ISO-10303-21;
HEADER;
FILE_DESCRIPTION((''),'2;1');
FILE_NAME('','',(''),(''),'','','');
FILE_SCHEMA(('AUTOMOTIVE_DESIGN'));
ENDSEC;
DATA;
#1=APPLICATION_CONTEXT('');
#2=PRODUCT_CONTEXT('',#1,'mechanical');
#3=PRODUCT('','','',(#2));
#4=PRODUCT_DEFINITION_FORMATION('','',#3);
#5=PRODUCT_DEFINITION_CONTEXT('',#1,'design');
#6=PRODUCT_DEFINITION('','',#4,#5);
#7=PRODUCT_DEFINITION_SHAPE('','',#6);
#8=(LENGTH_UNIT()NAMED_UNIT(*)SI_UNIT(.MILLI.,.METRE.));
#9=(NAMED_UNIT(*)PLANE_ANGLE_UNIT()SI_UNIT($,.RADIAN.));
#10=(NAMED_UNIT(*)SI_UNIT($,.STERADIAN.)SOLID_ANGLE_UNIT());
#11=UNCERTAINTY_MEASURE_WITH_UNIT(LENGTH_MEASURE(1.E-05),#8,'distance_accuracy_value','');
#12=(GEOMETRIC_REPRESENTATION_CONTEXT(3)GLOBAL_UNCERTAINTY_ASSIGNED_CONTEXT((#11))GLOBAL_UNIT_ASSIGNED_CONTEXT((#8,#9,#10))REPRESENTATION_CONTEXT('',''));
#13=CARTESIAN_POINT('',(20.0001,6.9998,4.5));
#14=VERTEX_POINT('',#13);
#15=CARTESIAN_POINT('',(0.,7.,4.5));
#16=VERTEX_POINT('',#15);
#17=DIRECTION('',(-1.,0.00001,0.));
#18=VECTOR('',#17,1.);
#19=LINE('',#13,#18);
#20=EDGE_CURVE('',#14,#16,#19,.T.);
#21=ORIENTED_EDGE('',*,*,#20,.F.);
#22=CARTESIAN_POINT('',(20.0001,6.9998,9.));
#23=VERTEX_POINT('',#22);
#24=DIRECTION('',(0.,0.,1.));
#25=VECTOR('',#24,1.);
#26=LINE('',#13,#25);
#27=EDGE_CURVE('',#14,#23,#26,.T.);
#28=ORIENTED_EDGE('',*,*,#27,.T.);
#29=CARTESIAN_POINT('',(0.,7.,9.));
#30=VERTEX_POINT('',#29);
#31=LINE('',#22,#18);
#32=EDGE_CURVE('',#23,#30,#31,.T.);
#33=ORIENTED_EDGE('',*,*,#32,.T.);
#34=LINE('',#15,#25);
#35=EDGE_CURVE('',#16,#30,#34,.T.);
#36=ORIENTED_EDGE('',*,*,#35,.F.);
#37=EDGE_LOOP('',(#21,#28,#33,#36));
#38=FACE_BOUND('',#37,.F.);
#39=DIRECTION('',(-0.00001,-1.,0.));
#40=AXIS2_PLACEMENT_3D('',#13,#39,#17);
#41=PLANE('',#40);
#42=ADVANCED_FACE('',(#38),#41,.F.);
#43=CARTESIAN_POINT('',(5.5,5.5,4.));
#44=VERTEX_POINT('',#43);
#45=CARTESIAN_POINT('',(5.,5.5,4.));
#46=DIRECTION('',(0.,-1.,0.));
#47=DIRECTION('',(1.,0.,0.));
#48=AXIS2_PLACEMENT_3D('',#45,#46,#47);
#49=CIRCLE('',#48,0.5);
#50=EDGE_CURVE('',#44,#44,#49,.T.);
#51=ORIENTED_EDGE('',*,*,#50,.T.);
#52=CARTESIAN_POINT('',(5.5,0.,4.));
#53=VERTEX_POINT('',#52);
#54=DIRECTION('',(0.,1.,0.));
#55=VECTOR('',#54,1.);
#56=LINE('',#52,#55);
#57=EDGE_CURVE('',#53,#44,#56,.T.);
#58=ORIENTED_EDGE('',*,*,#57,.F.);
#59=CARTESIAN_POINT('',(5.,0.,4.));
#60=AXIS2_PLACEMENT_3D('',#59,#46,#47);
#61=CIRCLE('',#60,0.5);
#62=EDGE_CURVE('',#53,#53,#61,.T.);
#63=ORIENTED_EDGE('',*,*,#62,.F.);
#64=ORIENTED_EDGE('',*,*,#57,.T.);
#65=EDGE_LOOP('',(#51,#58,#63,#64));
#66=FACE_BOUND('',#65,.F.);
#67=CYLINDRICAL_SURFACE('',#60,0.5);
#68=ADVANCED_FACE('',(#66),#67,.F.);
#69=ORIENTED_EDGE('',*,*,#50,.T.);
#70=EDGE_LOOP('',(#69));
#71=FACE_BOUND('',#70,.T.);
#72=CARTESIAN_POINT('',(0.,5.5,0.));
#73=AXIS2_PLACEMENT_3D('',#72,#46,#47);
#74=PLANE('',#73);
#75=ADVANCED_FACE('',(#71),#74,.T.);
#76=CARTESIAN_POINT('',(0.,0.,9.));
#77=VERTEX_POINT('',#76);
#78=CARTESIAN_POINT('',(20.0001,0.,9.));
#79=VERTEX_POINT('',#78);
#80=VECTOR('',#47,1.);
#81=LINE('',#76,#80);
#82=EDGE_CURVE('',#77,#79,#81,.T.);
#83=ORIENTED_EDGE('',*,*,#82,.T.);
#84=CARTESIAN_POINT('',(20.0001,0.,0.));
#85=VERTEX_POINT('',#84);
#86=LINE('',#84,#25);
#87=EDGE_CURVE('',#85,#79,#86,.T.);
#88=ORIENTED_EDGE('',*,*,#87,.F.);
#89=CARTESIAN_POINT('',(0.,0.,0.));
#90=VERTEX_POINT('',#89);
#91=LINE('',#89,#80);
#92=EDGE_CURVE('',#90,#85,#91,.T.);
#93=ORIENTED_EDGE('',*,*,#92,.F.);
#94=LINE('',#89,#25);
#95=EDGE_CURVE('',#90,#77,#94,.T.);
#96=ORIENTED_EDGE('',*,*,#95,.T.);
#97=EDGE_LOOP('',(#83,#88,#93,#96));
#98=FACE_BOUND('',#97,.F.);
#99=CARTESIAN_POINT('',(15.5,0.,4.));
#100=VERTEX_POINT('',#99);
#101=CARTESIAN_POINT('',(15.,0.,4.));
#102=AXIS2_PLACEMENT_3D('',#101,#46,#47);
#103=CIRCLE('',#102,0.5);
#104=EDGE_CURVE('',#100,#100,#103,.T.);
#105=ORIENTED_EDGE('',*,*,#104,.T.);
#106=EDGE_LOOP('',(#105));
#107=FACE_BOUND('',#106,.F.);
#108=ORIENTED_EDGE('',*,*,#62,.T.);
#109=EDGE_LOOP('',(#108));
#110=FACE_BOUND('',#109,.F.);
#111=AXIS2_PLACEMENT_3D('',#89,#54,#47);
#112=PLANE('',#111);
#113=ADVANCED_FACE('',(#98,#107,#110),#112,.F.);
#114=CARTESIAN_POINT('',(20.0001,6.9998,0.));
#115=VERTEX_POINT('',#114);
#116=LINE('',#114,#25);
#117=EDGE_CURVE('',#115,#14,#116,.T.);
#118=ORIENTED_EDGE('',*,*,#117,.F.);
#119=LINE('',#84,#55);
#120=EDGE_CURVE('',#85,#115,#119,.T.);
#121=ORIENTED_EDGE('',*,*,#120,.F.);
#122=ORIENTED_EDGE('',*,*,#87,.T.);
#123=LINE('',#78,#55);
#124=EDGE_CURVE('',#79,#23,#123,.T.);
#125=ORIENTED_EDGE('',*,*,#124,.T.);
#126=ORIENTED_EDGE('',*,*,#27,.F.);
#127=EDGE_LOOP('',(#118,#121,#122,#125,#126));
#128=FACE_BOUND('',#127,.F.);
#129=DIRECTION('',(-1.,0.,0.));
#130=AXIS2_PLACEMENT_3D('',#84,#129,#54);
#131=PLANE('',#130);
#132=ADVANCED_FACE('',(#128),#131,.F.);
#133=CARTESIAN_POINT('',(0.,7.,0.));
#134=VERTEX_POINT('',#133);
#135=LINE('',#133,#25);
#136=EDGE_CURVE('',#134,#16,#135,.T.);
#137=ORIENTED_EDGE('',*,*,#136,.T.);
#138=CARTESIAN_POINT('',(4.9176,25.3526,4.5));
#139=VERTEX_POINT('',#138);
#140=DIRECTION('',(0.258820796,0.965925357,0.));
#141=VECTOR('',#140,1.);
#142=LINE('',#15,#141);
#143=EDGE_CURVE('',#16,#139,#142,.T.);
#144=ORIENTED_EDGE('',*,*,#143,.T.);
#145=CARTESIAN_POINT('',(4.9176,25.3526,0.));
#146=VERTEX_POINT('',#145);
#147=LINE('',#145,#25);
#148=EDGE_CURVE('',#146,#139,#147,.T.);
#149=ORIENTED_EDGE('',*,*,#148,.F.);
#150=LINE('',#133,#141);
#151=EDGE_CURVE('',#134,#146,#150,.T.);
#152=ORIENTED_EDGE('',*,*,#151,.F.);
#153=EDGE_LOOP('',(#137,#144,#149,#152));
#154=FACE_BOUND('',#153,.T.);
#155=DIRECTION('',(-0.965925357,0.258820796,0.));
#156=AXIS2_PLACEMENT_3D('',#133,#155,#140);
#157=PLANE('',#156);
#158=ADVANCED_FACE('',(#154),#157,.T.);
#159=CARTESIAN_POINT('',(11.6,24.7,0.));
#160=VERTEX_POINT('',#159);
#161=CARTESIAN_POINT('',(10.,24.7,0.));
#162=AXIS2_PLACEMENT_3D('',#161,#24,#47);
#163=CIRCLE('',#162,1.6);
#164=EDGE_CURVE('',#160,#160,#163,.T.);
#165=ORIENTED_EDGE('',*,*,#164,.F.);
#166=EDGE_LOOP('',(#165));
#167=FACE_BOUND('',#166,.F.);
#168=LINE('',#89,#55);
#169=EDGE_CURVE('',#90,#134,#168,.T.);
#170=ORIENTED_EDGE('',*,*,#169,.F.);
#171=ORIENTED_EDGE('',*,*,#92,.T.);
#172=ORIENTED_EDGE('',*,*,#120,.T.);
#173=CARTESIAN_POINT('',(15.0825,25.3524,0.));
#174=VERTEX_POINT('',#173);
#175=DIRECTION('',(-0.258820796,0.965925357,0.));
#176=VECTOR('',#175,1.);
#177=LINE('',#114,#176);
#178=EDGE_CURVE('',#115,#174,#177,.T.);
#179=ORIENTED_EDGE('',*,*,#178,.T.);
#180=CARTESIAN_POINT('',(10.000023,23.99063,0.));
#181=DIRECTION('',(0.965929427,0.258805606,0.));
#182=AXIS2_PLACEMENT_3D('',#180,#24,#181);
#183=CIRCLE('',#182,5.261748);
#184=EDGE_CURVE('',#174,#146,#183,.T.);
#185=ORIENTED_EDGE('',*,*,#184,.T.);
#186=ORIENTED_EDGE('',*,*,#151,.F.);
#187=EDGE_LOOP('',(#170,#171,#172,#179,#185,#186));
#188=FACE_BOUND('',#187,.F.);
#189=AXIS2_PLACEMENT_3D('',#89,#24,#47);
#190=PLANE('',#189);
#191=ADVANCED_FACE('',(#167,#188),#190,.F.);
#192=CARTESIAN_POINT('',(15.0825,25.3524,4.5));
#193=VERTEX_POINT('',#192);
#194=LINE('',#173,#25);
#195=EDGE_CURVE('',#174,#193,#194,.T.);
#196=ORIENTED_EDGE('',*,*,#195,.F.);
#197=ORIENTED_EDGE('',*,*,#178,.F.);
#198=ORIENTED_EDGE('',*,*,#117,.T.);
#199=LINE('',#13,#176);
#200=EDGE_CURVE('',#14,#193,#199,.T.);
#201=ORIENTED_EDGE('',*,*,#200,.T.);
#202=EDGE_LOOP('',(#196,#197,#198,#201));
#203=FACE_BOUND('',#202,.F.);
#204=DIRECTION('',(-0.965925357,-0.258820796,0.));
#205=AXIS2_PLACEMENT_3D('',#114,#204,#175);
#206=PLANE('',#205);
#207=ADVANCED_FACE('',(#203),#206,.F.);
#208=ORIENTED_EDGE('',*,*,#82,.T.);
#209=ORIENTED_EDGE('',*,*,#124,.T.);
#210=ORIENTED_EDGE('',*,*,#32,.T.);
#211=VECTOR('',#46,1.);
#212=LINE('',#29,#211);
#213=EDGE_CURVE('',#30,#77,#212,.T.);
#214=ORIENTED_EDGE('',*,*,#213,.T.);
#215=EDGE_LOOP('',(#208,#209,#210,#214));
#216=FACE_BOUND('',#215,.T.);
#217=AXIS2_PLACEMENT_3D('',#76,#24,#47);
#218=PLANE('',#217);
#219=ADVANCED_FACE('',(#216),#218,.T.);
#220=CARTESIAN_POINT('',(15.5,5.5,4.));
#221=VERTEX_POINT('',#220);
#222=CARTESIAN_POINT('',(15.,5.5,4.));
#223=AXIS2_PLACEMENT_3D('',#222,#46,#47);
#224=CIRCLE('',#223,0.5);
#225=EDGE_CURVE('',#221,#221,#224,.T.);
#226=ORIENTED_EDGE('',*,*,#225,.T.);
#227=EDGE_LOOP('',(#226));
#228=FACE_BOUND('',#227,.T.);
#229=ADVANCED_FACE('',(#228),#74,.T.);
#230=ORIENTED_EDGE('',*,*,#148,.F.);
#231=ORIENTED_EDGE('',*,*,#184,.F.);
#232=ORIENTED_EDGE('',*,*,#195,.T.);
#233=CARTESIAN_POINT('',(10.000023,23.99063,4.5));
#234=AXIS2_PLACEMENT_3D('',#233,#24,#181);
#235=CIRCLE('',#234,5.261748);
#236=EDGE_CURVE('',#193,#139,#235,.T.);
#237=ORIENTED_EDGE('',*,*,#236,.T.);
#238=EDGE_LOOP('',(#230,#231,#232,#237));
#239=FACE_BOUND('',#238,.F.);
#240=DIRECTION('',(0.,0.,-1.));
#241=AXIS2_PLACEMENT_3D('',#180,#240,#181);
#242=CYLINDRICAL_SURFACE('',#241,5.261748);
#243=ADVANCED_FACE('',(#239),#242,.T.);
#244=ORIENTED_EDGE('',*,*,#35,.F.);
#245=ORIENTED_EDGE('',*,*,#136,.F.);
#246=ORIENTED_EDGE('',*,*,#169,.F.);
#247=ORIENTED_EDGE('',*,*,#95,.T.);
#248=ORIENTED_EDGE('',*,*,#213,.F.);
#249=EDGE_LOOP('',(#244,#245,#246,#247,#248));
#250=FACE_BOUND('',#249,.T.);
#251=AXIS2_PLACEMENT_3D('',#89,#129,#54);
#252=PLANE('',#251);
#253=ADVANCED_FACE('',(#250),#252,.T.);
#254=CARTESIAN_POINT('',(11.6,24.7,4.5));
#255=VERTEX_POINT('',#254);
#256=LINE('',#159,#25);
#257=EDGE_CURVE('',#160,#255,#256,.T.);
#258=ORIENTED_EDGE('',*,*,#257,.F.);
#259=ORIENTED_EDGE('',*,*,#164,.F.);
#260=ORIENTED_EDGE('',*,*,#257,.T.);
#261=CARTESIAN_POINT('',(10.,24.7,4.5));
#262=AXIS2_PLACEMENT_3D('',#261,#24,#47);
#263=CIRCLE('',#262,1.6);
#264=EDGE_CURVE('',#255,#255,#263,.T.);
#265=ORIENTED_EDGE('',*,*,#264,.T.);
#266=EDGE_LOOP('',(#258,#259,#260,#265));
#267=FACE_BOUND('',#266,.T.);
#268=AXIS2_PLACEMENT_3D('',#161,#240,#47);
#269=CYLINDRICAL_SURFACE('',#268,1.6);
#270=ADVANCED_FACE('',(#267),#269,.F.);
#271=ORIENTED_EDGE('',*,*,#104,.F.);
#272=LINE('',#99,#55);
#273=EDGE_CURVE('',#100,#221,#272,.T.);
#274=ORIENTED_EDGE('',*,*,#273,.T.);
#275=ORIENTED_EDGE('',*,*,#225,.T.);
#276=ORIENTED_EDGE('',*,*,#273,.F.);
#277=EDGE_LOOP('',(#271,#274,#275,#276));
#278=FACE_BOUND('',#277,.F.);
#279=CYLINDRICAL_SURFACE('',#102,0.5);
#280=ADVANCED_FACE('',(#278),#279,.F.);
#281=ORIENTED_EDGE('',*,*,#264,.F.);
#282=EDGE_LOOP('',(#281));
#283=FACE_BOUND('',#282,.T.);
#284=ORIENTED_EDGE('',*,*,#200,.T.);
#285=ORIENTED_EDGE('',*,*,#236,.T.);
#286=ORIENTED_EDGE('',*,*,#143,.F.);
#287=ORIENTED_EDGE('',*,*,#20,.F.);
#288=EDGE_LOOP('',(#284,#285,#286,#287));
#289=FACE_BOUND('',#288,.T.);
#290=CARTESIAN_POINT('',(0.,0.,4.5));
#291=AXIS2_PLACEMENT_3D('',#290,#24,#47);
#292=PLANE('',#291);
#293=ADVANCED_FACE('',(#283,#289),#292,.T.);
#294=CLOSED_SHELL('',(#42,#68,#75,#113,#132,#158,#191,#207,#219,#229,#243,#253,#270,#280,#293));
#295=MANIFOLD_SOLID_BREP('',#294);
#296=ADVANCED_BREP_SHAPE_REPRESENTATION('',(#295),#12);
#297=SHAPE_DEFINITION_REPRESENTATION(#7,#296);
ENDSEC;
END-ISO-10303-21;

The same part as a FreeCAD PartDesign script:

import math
import FreeCAD as App
import Part
import Sketcher
from FreeCAD import Vector
Q = App.Units.Quantity

doc = App.newDocument("Part")
body = doc.addObject("PartDesign::Body", "Body")

# Sketch on XY plane
sketch1 = doc.addObject("Sketcher::SketchObject", "Sketch")
body.addObject(sketch1)
sketch1.AttachmentSupport = (doc.XY_Plane, [""])
sketch1.MapMode = "FlatFace"
sketch1.addGeometry([
    Part.LineSegment(Vector(0, 7, 0), Vector(0, 0, 0)),  # 0
    Part.LineSegment(Vector(0, 0, 0), Vector(20, 0, 0)),  # 1
    Part.LineSegment(Vector(20, 0, 0), Vector(20, 7, 0)),  # 2
    Part.LineSegment(Vector(20, 7, 0), Vector(15.1, 25.4, 0)),  # 3
    Part.ArcOfCircle(Part.Circle(Vector(10, 24, 0), Vector(0, 0, 1), 5.3), math.radians(15), math.radians(165)),  # 4
    Part.LineSegment(Vector(4.9, 25.4, 0), Vector(0, 7, 0)),  # 5
    Part.Circle(Vector(10, 24.7, 0), Vector(0, 0, 1), 1.6),  # 6
], False)
sketch1.addConstraint([
    Sketcher.Constraint("Coincident", 0, 2, 1, 1),
    Sketcher.Constraint("Coincident", 1, 2, 2, 1),
    Sketcher.Constraint("Coincident", 2, 2, 3, 1),
    Sketcher.Constraint("Tangent", 3, 2, 4, 1),
    Sketcher.Constraint("Tangent", 4, 2, 5, 1),
    Sketcher.Constraint("Coincident", 5, 2, 0, 1),
    Sketcher.Constraint("Vertical", 0),
    Sketcher.Constraint("Horizontal", 1),
    Sketcher.Constraint("Vertical", 2),
    Sketcher.Constraint("Coincident", 0, 2, -1, 1),
    Sketcher.Constraint("Vertical", 4, 3, 6, 3),
    Sketcher.Constraint("Equal", 3, 5),
    Sketcher.Constraint("DistanceY", 0, 2, 0, 1, Q("7 mm")),
    Sketcher.Constraint("Angle", 3, Q("105 deg")),
    Sketcher.Constraint("Angle", 5, Q("-105 deg")),
    Sketcher.Constraint("Distance", 3, Q("19 mm")),
    Sketcher.Constraint("DistanceX", -1, 1, 4, 3, Q("10 mm")),
    Sketcher.Constraint("Diameter", 6, Q("3.2 mm")),
    Sketcher.Constraint("DistanceY", -1, 1, 6, 3, Q("24.7 mm")),
])
pad1 = doc.addObject("PartDesign::Pad", "Pad")
body.addObject(pad1)
pad1.Profile = sketch1
pad1.Length = 4.5

# Sketch on XY plane
sketch2 = doc.addObject("Sketcher::SketchObject", "Sketch001")
body.addObject(sketch2)
sketch2.AttachmentSupport = (doc.XY_Plane, [""])
sketch2.MapMode = "FlatFace"
sketch2.AttachmentOffset = App.Placement(Vector(0, 0, 4.5), App.Rotation())
sketch2.addGeometry([
    Part.LineSegment(Vector(20, 7, 0), Vector(0, 7, 0)),
    Part.LineSegment(Vector(0, 7, 0), Vector(0, 0, 0)),
    Part.LineSegment(Vector(0, 0, 0), Vector(20, 0, 0)),
    Part.LineSegment(Vector(20, 0, 0), Vector(20, 7, 0)),
], False)
sketch2.addConstraint([
    Sketcher.Constraint("Coincident", 0, 2, 1, 1),
    Sketcher.Constraint("Coincident", 1, 2, 2, 1),
    Sketcher.Constraint("Coincident", 2, 2, 3, 1),
    Sketcher.Constraint("Coincident", 3, 2, 0, 1),
    Sketcher.Constraint("Vertical", 1),
    Sketcher.Constraint("Horizontal", 2),
    Sketcher.Constraint("Vertical", 3),
    Sketcher.Constraint("Coincident", 1, 2, -1, 1),
    Sketcher.Constraint("DistanceX", 2, 1, 2, 2, Q("20 mm")),
    Sketcher.Constraint("DistanceY", 1, 2, 1, 1, Q("7 mm")),
    Sketcher.Constraint("Angle", 0, Q("179.9994 deg")),
])
pad2 = doc.addObject("PartDesign::Pad", "Pad001")
body.addObject(pad2)
pad2.Profile = sketch2
pad2.Length = 4.5

# Sketch on XZ plane
sketch3 = doc.addObject("Sketcher::SketchObject", "Sketch002")
body.addObject(sketch3)
sketch3.AttachmentSupport = (doc.XZ_Plane, [""])
sketch3.MapMode = "FlatFace"
sketch3.addGeometry([
    Part.Circle(Vector(5, 4, 0), Vector(0, 0, 1), 0.5),
    Part.Circle(Vector(15, 4, 0), Vector(0, 0, 1), 0.5),
], False)
sketch3.addConstraint([
    Sketcher.Constraint("Equal", 0, 1),
    Sketcher.Constraint("Horizontal", 0, 3, 1, 3),
    Sketcher.Constraint("Diameter", 0, Q("1 mm")),
    Sketcher.Constraint("DistanceX", -1, 1, 0, 3, Q("5 mm")),
    Sketcher.Constraint("DistanceY", -1, 1, 0, 3, Q("4 mm")),
    Sketcher.Constraint("DistanceX", -1, 1, 1, 3, Q("15 mm")),
])
pocket1 = doc.addObject("PartDesign::Pocket", "Pocket")
body.addObject(pocket1)
pocket1.Profile = sketch3
pocket1.Length = 5.5

doc.recompute()
